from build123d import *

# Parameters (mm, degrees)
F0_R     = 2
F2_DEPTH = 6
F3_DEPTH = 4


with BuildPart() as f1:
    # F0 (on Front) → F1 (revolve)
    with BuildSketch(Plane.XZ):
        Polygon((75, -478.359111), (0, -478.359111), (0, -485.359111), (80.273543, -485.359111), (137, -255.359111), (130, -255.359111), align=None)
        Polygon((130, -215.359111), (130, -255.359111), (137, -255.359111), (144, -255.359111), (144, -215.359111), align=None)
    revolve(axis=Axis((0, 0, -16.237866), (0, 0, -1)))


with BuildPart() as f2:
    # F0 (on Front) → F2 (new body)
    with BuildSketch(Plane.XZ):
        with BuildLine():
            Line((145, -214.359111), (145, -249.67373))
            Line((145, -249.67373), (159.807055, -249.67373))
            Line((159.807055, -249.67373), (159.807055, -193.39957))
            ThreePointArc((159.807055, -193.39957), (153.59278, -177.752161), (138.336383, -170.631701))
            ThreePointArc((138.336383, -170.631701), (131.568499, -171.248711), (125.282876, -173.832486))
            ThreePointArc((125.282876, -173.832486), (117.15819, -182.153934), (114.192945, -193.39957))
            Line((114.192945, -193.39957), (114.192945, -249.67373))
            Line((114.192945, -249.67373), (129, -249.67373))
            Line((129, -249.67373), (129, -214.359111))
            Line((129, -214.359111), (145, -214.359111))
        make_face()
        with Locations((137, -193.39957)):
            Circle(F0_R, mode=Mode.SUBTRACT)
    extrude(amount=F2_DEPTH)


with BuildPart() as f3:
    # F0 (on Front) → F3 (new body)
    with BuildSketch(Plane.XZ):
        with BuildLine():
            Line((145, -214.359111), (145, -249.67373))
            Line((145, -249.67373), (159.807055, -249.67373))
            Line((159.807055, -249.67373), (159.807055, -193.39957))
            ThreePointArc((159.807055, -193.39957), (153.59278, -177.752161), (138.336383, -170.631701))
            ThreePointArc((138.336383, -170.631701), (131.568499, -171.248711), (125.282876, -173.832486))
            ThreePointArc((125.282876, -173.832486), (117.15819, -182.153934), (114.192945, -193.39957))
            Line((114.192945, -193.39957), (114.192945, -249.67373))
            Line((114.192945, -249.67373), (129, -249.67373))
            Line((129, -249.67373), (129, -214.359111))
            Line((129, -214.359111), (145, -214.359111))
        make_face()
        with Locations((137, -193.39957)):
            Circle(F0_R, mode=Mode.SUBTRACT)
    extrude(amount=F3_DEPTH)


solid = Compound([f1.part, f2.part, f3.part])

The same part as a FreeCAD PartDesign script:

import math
import FreeCAD as App
import Part
import Sketcher

V = App.Vector
Q = App.Units.Quantity


def add_polygon(sketch, points):
    """Adds a closed chain of lines whose ends are joined by coincident constraints."""
    first, n = sketch.GeometryCount, len(points)
    for a, b in zip(points, points[1:] + points[:1]):
        sketch.addGeometry(Part.LineSegment(App.Vector(*a, 0), App.Vector(*b, 0)), False)
    for i in range(n):
        sketch.addConstraint(Sketcher.Constraint("Coincident", first + i, 2, first + (i + 1) % n, 1))

doc = App.newDocument("Part")
body = doc.addObject("PartDesign::Body", "Body")

# Sketch on XZ plane
sketch1 = doc.addObject("Sketcher::SketchObject", "Sketch")
body.addObject(sketch1)
sketch1.AttachmentSupport = (doc.XZ_Plane, [""])
sketch1.MapMode = "FlatFace"
add_polygon(sketch1, [(75, -478), (0, -478), (0, -485), (80, -485), (137, -255), (144, -255), (144, -215), (130, -215), (130, -255)])  # lines 0-8
sketch1.addConstraint(Sketcher.Constraint("Horizontal", 0))
sketch1.addConstraint(Sketcher.Constraint("Vertical", 1))
sketch1.addConstraint(Sketcher.Constraint("Horizontal", 2))
sketch1.addConstraint(Sketcher.Constraint("Horizontal", 4))
sketch1.addConstraint(Sketcher.Constraint("Vertical", 5))
sketch1.addConstraint(Sketcher.Constraint("Horizontal", 6))
sketch1.addConstraint(Sketcher.Constraint("Vertical", 7))
sketch1.addConstraint(Sketcher.Constraint("PointOnObject", 0, 2, -2))
sketch1.addConstraint(Sketcher.Constraint("Parallel", 3, 8))
sketch1.addConstraint(Sketcher.Constraint("Horizontal", 4, 2, 7, 2))
sketch1.addConstraint(Sketcher.Constraint("Equal", 4, 1))
sketch1.addConstraint(Sketcher.Constraint("DistanceX", 0, 2, 0, 1, Q("75 mm")))
sketch1.addConstraint(Sketcher.Constraint("DistanceX", 4, 1, 4, 2, Q("7 mm")))
sketch1.addConstraint(Sketcher.Constraint("DistanceX", 6, 2, 6, 1, Q("14 mm")))
sketch1.addConstraint(Sketcher.Constraint("DistanceY", 5, 1, 5, 2, Q("40 mm")))
sketch1.addConstraint(Sketcher.Constraint("DistanceX", -1, 1, 3, 2, Q("137 mm")))
sketch1.addConstraint(Sketcher.Constraint("DistanceY", 2, 2, 3, 2, Q("230 mm")))
sketch1.addConstraint(Sketcher.Constraint("DistanceY", 0, 2, -1, 1, Q("478.359111 mm")))
revolution = doc.addObject("PartDesign::Revolution", "Revolution")
body.addObject(revolution)
revolution.Profile = sketch1
revolution.ReferenceAxis = (sketch1, ["V_Axis"])
revolution.Angle = 360
body2 = doc.addObject("PartDesign::Body", "Body001")

# Sketch on XZ plane
sketch2 = doc.addObject("Sketcher::SketchObject", "Sketch001")
body2.addObject(sketch2)
sketch2.AttachmentSupport = (doc.getObject("XZ_Plane001"), [""])
sketch2.MapMode = "FlatFace"
sketch2.addGeometry(Part.LineSegment(V(145, -214.4, 0), V(145, -249.7, 0)), False)
sketch2.addGeometry(Part.LineSegment(V(145, -249.7, 0), V(159.8, -249.7, 0)), False)
sketch2.addGeometry(Part.LineSegment(V(159.8, -249.7, 0), V(159.8, -193.4, 0)), False)
sketch2.addGeometry(Part.ArcOfCircle(Part.Circle(V(137, -193.4, 0), V(0, 0, 1), 22.8), math.radians(0), math.radians(87)), False)
sketch2.addGeometry(Part.ArcOfCircle(Part.Circle(V(137, -193.4, 0), V(0, 0, 1), 22.8), math.radians(87), math.radians(121)), False)
sketch2.addGeometry(Part.ArcOfCircle(Part.Circle(V(137, -193.4, 0), V(0, 0, 1), 22.8), math.radians(121), math.radians(180)), False)
sketch2.addGeometry(Part.LineSegment(V(114.2, -193.4, 0), V(114.2, -249.7, 0)), False)
sketch2.addGeometry(Part.LineSegment(V(114.2, -249.7, 0), V(129, -249.7, 0)), False)
sketch2.addGeometry(Part.LineSegment(V(129, -249.7, 0), V(129, -214.4, 0)), False)
sketch2.addGeometry(Part.LineSegment(V(129, -214.4, 0), V(145, -214.4, 0)), False)
sketch2.addGeometry(Part.Circle(V(137, -193.4, 0), V(0, 0, 1), 2), False)
sketch2.addConstraint(Sketcher.Constraint("Coincident", 0, 2, 1, 1))
sketch2.addConstraint(Sketcher.Constraint("Coincident", 1, 2, 2, 1))
sketch2.addConstraint(Sketcher.Constraint("Tangent", 2, 2, 3, 1))
sketch2.addConstraint(Sketcher.Constraint("Tangent", 3, 2, 4, 1))
sketch2.addConstraint(Sketcher.Constraint("Tangent", 4, 2, 5, 1))
sketch2.addConstraint(Sketcher.Constraint("Tangent", 5, 2, 6, 1))
sketch2.addConstraint(Sketcher.Constraint("Coincident", 6, 2, 7, 1))
sketch2.addConstraint(Sketcher.Constraint("Coincident", 7, 2, 8, 1))
sketch2.addConstraint(Sketcher.Constraint("Coincident", 8, 2, 9, 1))
sketch2.addConstraint(Sketcher.Constraint("Coincident", 9, 2, 0, 1))
sketch2.addConstraint(Sketcher.Constraint("Vertical", 0))
sketch2.addConstraint(Sketcher.Constraint("Horizontal", 1))
sketch2.addConstraint(Sketcher.Constraint("Vertical", 2))
sketch2.addConstraint(Sketcher.Constraint("Vertical", 6))
sketch2.addConstraint(Sketcher.Constraint("Horizontal", 7))
sketch2.addConstraint(Sketcher.Constraint("Vertical", 8))
sketch2.addConstraint(Sketcher.Constraint("Horizontal", 9))
sketch2.addConstraint(Sketcher.Constraint("Coincident", 5, 3, 3, 3))
sketch2.addConstraint(Sketcher.Constraint("Coincident", 10, 3, 3, 3))
sketch2.addConstraint(Sketcher.Constraint("Horizontal", 1, 2, 6, 2))
sketch2.addConstraint(Sketcher.Constraint("Equal", 1, 7))
sketch2.addConstraint(Sketcher.Constraint("Diameter", 10, Q("4 mm")))
sketch2.addConstraint(Sketcher.Constraint("DistanceX", 9, 1, 9, 2, Q("16 mm")))
sketch2.addConstraint(Sketcher.Constraint("DistanceX", -1, 1, 3, 3, Q("136.999999 mm")))
sketch2.addConstraint(Sketcher.Constraint("Radius", 3, Q("22.807056 mm")))
sketch2.addConstraint(Sketcher.Constraint("DistanceY", 0, 2, 0, 1, Q("35.314619 mm")))
sketch2.addConstraint(Sketcher.Constraint("DistanceY", 2, 1, 2, 2, Q("56.27416 mm")))
sketch2.addConstraint(Sketcher.Constraint("DistanceY", 3, 2, -1, 1, Q("170.631701 mm")))
sketch2.addConstraint(Sketcher.Constraint("DistanceY", 3, 3, -1, 1, Q("193.39957 mm")))
sketch2.addConstraint(Sketcher.Constraint("DistanceX", 5, 2, 4, 2, Q("11.089931 mm")))
pad1 = doc.addObject("PartDesign::Pad", "Pad")
body2.addObject(pad1)
pad1.Profile = sketch2
pad1.Length = 6
body3 = doc.addObject("PartDesign::Body", "Body002")

# Sketch on XZ plane
sketch3 = doc.addObject("Sketcher::SketchObject", "Sketch002")
body3.addObject(sketch3)
sketch3.AttachmentSupport = (doc.getObject("XZ_Plane002"), [""])
sketch3.MapMode = "FlatFace"
sketch3.addGeometry(Part.LineSegment(V(145, -214.4, 0), V(145, -249.7, 0)), False)
sketch3.addGeometry(Part.LineSegment(V(145, -249.7, 0), V(159.8, -249.7, 0)), False)
sketch3.addGeometry(Part.LineSegment(V(159.8, -249.7, 0), V(159.8, -193.4, 0)), False)
sketch3.addGeometry(Part.ArcOfCircle(Part.Circle(V(137, -193.4, 0), V(0, 0, 1), 22.8), math.radians(0), math.radians(87)), False)
sketch3.addGeometry(Part.ArcOfCircle(Part.Circle(V(137, -193.4, 0), V(0, 0, 1), 22.8), math.radians(87), math.radians(121)), False)
sketch3.addGeometry(Part.ArcOfCircle(Part.Circle(V(137, -193.4, 0), V(0, 0, 1), 22.8), math.radians(121), math.radians(180)), False)
sketch3.addGeometry(Part.LineSegment(V(114.2, -193.4, 0), V(114.2, -249.7, 0)), False)
sketch3.addGeometry(Part.LineSegment(V(114.2, -249.7, 0), V(129, -249.7, 0)), False)
sketch3.addGeometry(Part.LineSegment(V(129, -249.7, 0), V(129, -214.4, 0)), False)
sketch3.addGeometry(Part.LineSegment(V(129, -214.4, 0), V(145, -214.4, 0)), False)
sketch3.addGeometry(Part.Circle(V(137, -193.4, 0), V(0, 0, 1), 2), False)
sketch3.addConstraint(Sketcher.Constraint("Coincident", 0, 2, 1, 1))
sketch3.addConstraint(Sketcher.Constraint("Coincident", 1, 2, 2, 1))
sketch3.addConstraint(Sketcher.Constraint("Tangent", 2, 2, 3, 1))
sketch3.addConstraint(Sketcher.Constraint("Tangent", 3, 2, 4, 1))
sketch3.addConstraint(Sketcher.Constraint("Tangent", 4, 2, 5, 1))
sketch3.addConstraint(Sketcher.Constraint("Tangent", 5, 2, 6, 1))
sketch3.addConstraint(Sketcher.Constraint("Coincident", 6, 2, 7, 1))
sketch3.addConstraint(Sketcher.Constraint("Coincident", 7, 2, 8, 1))
sketch3.addConstraint(Sketcher.Constraint("Coincident", 8, 2, 9, 1))
sketch3.addConstraint(Sketcher.Constraint("Coincident", 9, 2, 0, 1))
sketch3.addConstraint(Sketcher.Constraint("Vertical", 0))
sketch3.addConstraint(Sketcher.Constraint("Horizontal", 1))
sketch3.addConstraint(Sketcher.Constraint("Vertical", 2))
sketch3.addConstraint(Sketcher.Constraint("Vertical", 6))
sketch3.addConstraint(Sketcher.Constraint("Horizontal", 7))
sketch3.addConstraint(Sketcher.Constraint("Vertical", 8))
sketch3.addConstraint(Sketcher.Constraint("Horizontal", 9))
sketch3.addConstraint(Sketcher.Constraint("Coincident", 5, 3, 3, 3))
sketch3.addConstraint(Sketcher.Constraint("Coincident", 10, 3, 3, 3))
sketch3.addConstraint(Sketcher.Constraint("Horizontal", 1, 2, 6, 2))
sketch3.addConstraint(Sketcher.Constraint("Equal", 1, 7))
sketch3.addConstraint(Sketcher.Constraint("Diameter", 10, Q("4 mm")))
sketch3.addConstraint(Sketcher.Constraint("DistanceX", 9, 1, 9, 2, Q("16 mm")))
sketch3.addConstraint(Sketcher.Constraint("DistanceX", -1, 1, 3, 3, Q("136.999999 mm")))
sketch3.addConstraint(Sketcher.Constraint("Radius", 3, Q("22.807056 mm")))
sketch3.addConstraint(Sketcher.Constraint("DistanceY", 0, 2, 0, 1, Q("35.314619 mm")))
sketch3.addConstraint(Sketcher.Constraint("DistanceY", 2, 1, 2, 2, Q("56.27416 mm")))
sketch3.addConstraint(Sketcher.Constraint("DistanceY", 3, 2, -1, 1, Q("170.631701 mm")))
sketch3.addConstraint(Sketcher.Constraint("DistanceY", 3, 3, -1, 1, Q("193.39957 mm")))
sketch3.addConstraint(Sketcher.Constraint("DistanceX", 5, 2, 4, 2, Q("11.089931 mm")))
pad2 = doc.addObject("PartDesign::Pad", "Pad001")
body3.addObject(pad2)
pad2.Profile = sketch3
pad2.Length = 4

doc.recompute()
